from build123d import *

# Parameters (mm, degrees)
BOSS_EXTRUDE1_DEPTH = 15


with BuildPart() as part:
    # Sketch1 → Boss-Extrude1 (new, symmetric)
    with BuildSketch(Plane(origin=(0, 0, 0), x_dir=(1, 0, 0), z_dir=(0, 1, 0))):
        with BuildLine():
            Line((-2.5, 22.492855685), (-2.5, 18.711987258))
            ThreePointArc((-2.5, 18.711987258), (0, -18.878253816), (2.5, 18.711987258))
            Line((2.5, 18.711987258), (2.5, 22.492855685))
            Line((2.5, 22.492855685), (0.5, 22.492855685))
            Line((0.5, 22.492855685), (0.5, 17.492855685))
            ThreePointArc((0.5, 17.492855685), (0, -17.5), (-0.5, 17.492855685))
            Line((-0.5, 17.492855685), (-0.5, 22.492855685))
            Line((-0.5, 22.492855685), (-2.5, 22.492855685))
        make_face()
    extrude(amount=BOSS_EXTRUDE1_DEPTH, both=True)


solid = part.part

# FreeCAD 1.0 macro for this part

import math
import FreeCAD as App
import Part
import Sketcher

doc = App.newDocument("Part")
params = doc.addObject("Spreadsheet::Sheet", "Params")
for row, (alias, value) in enumerate([
    ("sketch1_radius", "17.5 mm"),
    ("sketch1_width", "2 mm"),
    ("sketch1_height", "5 mm"),
    ("pad1_length", "30 mm"),
], start=1):
    params.set(f"A{row}", alias)
    params.set(f"B{row}", "=" + value)
    params.setAlias(f"B{row}", alias)

body = doc.addObject("PartDesign::Body", "Body")

sketch1 = doc.addObject("Sketcher::SketchObject", "Sketch")
body.addObject(sketch1)
sketch1.AttachmentSupport = (doc.XZ_Plane, [""])
sketch1.MapMode = "FlatFace"
sketch1.addGeometry([
    Part.LineSegment(App.Vector(-2.5, -22.5, 0), App.Vector(-2.5, -18.7, 0)),
    Part.ArcOfCircle(Part.Circle(App.Vector(0, 0, 0), App.Vector(0, 0, 1), 18.9), math.radians(-82), math.radians(262)),
    Part.LineSegment(App.Vector(2.5, -18.7, 0), App.Vector(2.5, -22.5, 0)),
    Part.LineSegment(App.Vector(2.5, -22.5, 0), App.Vector(0.5, -22.5, 0)),
    Part.LineSegment(App.Vector(0.5, -22.5, 0), App.Vector(0.5, -17.5, 0)),
    Part.ArcOfCircle(Part.Circle(App.Vector(0, 0, 0), App.Vector(0, 0, 1), 17.5), math.radians(-88), math.radians(268)),
    Part.LineSegment(App.Vector(-0.5, -17.5, 0), App.Vector(-0.5, -22.5, 0)),
    Part.LineSegment(App.Vector(-0.5, -22.5, 0), App.Vector(-2.5, -22.5, 0)),
], False)
sketch1.addConstraint([
    Sketcher.Constraint("Coincident", 0, 2, 1, 2),
    Sketcher.Constraint("Coincident", 1, 1, 2, 1),
    Sketcher.Constraint("Coincident", 2, 2, 3, 1),
    Sketcher.Constraint("Coincident", 3, 2, 4, 1),
    Sketcher.Constraint("Coincident", 4, 2, 5, 1),
    Sketcher.Constraint("Coincident", 5, 2, 6, 1),
    Sketcher.Constraint("Coincident", 6, 2, 7, 1),
    Sketcher.Constraint("Coincident", 7, 2, 0, 1),
    Sketcher.Constraint("Vertical", 0),
    Sketcher.Constraint("Vertical", 2),
    Sketcher.Constraint("Horizontal", 3),
    Sketcher.Constraint("Vertical", 4),
    Sketcher.Constraint("Vertical", 6),
    Sketcher.Constraint("Horizontal", 7),
    Sketcher.Constraint("Coincident", 1, 3, -1, 1),
    Sketcher.Constraint("Coincident", 5, 3, -1, 1),
    Sketcher.Constraint("Symmetric", 3, 2, 6, 2, -2),
    Sketcher.Constraint("Horizontal", 0, 2, 1, 1),
    Sketcher.Constraint("Radius", 5, 17.5),
    Sketcher.Constraint("DistanceX", 3, 2, 3, 1, 2.0),
    Sketcher.Constraint("DistanceY", 4, 1, 4, 2, 5.0),
    Sketcher.Constraint("DistanceX", 0, 2, 1, 1, 5.0),
    Sketcher.Constraint("Radius", 1, 18.878254),
])
sketch1.setExpression("Constraints[18]", "Params.sketch1_radius")
sketch1.setExpression("Constraints[19]", "Params.sketch1_width")
sketch1.setExpression("Constraints[20]", "Params.sketch1_height")
pad1 = doc.addObject("PartDesign::Pad", "Pad")
body.addObject(pad1)
pad1.Profile = sketch1
pad1.setExpression("Length", "Params.pad1_length")
pad1.Midplane = True

doc.recompute()
